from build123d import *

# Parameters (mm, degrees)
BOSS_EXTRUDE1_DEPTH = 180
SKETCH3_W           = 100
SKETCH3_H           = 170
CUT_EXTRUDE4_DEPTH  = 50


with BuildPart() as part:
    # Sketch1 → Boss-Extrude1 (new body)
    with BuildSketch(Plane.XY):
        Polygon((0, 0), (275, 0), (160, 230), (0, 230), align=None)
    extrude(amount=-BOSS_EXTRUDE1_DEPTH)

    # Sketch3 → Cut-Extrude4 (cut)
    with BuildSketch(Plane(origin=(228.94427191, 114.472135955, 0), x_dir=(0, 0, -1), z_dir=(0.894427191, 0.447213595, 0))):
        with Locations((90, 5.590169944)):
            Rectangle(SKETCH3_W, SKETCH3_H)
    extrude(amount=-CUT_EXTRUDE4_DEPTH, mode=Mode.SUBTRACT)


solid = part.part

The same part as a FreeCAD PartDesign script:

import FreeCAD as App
import Part
import Sketcher
Q = App.Units.Quantity


def add_polygon(sketch, points):
    """Adds a closed chain of lines whose ends are joined by coincident constraints."""
    first, n = sketch.GeometryCount, len(points)
    for a, b in zip(points, points[1:] + points[:1]):
        sketch.addGeometry(Part.LineSegment(App.Vector(*a, 0), App.Vector(*b, 0)), False)
    for i in range(n):
        sketch.addConstraint(Sketcher.Constraint("Coincident", first + i, 2, first + (i + 1) % n, 1))

doc = App.newDocument("Part")
params = doc.addObject("Spreadsheet::Sheet", "Params")
for row, (alias, value) in enumerate([
    ("sketch1_width", "275 mm"),
    ("sketch1_width2", "160 mm"),
    ("sketch1_height", "230 mm"),
    ("pad1_length", "180 mm"),
    ("sketch2_width", "100 mm"),
    ("sketch2_height", "170 mm"),
    ("pocket1_length", "50 mm"),
], start=1):
    params.set(f"A{row}", alias)
    params.set(f"B{row}", "=" + value)
    params.setAlias(f"B{row}", alias)

body = doc.addObject("PartDesign::Body", "Body")

sketch1 = body.newObject("Sketcher::SketchObject", "Sketch")
sketch1.AttachmentSupport = (doc.getObject("XY_Plane"), [""])
sketch1.MapMode = "FlatFace"
add_polygon(sketch1, [(0, 0), (275, 0), (160, 230), (0, 230)])
sketch1.addConstraint(Sketcher.Constraint("Horizontal", 0))
sketch1.addConstraint(Sketcher.Constraint("Horizontal", 2))
sketch1.addConstraint(Sketcher.Constraint("Vertical", 3))
sketch1.addConstraint(Sketcher.Constraint("Coincident", 3, 2, -1, 1))
sketch1.addConstraint(Sketcher.Constraint("DistanceX", 0, 1, 0, 2, Q("275 mm")))
sketch1.addConstraint(Sketcher.Constraint("DistanceX", 2, 2, 2, 1, Q("160 mm")))
sketch1.addConstraint(Sketcher.Constraint("DistanceY", 3, 2, 3, 1, Q("230 mm")))
sketch1.setExpression("Constraints[8]", "Params.sketch1_width")
sketch1.setExpression("Constraints[9]", "Params.sketch1_width2")
sketch1.setExpression("Constraints[10]", "Params.sketch1_height")
pad1 = body.newObject("PartDesign::Pad", "Pad")
pad1.Profile = sketch1
pad1.setExpression("Length", "Params.pad1_length")
pad1.Reversed = True

sketch2 = body.newObject("Sketcher::SketchObject", "Sketch001")
sketch2.Placement = App.Placement(App.Vector(228.944272, 114.472136, 0), App.Rotation(App.Vector(0, 0, -1), App.Vector(-0.447213595, 0.894427191, 0), App.Vector(0.894427191, 0.447213595, 0), "ZXY"))
add_polygon(sketch2, [(40, 90.59017), (40, -79.40983), (140, -79.40983), (140, 90.59017)])
sketch2.addConstraint(Sketcher.Constraint("Vertical", 0))
sketch2.addConstraint(Sketcher.Constraint("Horizontal", 1))
sketch2.addConstraint(Sketcher.Constraint("Vertical", 2))
sketch2.addConstraint(Sketcher.Constraint("Horizontal", 3))
sketch2.addConstraint(Sketcher.Constraint("DistanceX", 1, 1, 1, 2, Q("100 mm")))
sketch2.addConstraint(Sketcher.Constraint("DistanceY", 0, 2, 0, 1, Q("170 mm")))
sketch2.addConstraint(Sketcher.Constraint("DistanceX", -1, 1, 0, 2, Q("40 mm")))
sketch2.addConstraint(Sketcher.Constraint("DistanceY", 0, 2, -1, 1, Q("79.40983 mm")))
sketch2.setExpression("Constraints[8]", "Params.sketch2_width")
sketch2.setExpression("Constraints[9]", "Params.sketch2_height")
pocket1 = body.newObject("PartDesign::Pocket", "Pocket")
pocket1.Profile = sketch2
pocket1.setExpression("Length", "Params.pocket1_length")

doc.recompute()
